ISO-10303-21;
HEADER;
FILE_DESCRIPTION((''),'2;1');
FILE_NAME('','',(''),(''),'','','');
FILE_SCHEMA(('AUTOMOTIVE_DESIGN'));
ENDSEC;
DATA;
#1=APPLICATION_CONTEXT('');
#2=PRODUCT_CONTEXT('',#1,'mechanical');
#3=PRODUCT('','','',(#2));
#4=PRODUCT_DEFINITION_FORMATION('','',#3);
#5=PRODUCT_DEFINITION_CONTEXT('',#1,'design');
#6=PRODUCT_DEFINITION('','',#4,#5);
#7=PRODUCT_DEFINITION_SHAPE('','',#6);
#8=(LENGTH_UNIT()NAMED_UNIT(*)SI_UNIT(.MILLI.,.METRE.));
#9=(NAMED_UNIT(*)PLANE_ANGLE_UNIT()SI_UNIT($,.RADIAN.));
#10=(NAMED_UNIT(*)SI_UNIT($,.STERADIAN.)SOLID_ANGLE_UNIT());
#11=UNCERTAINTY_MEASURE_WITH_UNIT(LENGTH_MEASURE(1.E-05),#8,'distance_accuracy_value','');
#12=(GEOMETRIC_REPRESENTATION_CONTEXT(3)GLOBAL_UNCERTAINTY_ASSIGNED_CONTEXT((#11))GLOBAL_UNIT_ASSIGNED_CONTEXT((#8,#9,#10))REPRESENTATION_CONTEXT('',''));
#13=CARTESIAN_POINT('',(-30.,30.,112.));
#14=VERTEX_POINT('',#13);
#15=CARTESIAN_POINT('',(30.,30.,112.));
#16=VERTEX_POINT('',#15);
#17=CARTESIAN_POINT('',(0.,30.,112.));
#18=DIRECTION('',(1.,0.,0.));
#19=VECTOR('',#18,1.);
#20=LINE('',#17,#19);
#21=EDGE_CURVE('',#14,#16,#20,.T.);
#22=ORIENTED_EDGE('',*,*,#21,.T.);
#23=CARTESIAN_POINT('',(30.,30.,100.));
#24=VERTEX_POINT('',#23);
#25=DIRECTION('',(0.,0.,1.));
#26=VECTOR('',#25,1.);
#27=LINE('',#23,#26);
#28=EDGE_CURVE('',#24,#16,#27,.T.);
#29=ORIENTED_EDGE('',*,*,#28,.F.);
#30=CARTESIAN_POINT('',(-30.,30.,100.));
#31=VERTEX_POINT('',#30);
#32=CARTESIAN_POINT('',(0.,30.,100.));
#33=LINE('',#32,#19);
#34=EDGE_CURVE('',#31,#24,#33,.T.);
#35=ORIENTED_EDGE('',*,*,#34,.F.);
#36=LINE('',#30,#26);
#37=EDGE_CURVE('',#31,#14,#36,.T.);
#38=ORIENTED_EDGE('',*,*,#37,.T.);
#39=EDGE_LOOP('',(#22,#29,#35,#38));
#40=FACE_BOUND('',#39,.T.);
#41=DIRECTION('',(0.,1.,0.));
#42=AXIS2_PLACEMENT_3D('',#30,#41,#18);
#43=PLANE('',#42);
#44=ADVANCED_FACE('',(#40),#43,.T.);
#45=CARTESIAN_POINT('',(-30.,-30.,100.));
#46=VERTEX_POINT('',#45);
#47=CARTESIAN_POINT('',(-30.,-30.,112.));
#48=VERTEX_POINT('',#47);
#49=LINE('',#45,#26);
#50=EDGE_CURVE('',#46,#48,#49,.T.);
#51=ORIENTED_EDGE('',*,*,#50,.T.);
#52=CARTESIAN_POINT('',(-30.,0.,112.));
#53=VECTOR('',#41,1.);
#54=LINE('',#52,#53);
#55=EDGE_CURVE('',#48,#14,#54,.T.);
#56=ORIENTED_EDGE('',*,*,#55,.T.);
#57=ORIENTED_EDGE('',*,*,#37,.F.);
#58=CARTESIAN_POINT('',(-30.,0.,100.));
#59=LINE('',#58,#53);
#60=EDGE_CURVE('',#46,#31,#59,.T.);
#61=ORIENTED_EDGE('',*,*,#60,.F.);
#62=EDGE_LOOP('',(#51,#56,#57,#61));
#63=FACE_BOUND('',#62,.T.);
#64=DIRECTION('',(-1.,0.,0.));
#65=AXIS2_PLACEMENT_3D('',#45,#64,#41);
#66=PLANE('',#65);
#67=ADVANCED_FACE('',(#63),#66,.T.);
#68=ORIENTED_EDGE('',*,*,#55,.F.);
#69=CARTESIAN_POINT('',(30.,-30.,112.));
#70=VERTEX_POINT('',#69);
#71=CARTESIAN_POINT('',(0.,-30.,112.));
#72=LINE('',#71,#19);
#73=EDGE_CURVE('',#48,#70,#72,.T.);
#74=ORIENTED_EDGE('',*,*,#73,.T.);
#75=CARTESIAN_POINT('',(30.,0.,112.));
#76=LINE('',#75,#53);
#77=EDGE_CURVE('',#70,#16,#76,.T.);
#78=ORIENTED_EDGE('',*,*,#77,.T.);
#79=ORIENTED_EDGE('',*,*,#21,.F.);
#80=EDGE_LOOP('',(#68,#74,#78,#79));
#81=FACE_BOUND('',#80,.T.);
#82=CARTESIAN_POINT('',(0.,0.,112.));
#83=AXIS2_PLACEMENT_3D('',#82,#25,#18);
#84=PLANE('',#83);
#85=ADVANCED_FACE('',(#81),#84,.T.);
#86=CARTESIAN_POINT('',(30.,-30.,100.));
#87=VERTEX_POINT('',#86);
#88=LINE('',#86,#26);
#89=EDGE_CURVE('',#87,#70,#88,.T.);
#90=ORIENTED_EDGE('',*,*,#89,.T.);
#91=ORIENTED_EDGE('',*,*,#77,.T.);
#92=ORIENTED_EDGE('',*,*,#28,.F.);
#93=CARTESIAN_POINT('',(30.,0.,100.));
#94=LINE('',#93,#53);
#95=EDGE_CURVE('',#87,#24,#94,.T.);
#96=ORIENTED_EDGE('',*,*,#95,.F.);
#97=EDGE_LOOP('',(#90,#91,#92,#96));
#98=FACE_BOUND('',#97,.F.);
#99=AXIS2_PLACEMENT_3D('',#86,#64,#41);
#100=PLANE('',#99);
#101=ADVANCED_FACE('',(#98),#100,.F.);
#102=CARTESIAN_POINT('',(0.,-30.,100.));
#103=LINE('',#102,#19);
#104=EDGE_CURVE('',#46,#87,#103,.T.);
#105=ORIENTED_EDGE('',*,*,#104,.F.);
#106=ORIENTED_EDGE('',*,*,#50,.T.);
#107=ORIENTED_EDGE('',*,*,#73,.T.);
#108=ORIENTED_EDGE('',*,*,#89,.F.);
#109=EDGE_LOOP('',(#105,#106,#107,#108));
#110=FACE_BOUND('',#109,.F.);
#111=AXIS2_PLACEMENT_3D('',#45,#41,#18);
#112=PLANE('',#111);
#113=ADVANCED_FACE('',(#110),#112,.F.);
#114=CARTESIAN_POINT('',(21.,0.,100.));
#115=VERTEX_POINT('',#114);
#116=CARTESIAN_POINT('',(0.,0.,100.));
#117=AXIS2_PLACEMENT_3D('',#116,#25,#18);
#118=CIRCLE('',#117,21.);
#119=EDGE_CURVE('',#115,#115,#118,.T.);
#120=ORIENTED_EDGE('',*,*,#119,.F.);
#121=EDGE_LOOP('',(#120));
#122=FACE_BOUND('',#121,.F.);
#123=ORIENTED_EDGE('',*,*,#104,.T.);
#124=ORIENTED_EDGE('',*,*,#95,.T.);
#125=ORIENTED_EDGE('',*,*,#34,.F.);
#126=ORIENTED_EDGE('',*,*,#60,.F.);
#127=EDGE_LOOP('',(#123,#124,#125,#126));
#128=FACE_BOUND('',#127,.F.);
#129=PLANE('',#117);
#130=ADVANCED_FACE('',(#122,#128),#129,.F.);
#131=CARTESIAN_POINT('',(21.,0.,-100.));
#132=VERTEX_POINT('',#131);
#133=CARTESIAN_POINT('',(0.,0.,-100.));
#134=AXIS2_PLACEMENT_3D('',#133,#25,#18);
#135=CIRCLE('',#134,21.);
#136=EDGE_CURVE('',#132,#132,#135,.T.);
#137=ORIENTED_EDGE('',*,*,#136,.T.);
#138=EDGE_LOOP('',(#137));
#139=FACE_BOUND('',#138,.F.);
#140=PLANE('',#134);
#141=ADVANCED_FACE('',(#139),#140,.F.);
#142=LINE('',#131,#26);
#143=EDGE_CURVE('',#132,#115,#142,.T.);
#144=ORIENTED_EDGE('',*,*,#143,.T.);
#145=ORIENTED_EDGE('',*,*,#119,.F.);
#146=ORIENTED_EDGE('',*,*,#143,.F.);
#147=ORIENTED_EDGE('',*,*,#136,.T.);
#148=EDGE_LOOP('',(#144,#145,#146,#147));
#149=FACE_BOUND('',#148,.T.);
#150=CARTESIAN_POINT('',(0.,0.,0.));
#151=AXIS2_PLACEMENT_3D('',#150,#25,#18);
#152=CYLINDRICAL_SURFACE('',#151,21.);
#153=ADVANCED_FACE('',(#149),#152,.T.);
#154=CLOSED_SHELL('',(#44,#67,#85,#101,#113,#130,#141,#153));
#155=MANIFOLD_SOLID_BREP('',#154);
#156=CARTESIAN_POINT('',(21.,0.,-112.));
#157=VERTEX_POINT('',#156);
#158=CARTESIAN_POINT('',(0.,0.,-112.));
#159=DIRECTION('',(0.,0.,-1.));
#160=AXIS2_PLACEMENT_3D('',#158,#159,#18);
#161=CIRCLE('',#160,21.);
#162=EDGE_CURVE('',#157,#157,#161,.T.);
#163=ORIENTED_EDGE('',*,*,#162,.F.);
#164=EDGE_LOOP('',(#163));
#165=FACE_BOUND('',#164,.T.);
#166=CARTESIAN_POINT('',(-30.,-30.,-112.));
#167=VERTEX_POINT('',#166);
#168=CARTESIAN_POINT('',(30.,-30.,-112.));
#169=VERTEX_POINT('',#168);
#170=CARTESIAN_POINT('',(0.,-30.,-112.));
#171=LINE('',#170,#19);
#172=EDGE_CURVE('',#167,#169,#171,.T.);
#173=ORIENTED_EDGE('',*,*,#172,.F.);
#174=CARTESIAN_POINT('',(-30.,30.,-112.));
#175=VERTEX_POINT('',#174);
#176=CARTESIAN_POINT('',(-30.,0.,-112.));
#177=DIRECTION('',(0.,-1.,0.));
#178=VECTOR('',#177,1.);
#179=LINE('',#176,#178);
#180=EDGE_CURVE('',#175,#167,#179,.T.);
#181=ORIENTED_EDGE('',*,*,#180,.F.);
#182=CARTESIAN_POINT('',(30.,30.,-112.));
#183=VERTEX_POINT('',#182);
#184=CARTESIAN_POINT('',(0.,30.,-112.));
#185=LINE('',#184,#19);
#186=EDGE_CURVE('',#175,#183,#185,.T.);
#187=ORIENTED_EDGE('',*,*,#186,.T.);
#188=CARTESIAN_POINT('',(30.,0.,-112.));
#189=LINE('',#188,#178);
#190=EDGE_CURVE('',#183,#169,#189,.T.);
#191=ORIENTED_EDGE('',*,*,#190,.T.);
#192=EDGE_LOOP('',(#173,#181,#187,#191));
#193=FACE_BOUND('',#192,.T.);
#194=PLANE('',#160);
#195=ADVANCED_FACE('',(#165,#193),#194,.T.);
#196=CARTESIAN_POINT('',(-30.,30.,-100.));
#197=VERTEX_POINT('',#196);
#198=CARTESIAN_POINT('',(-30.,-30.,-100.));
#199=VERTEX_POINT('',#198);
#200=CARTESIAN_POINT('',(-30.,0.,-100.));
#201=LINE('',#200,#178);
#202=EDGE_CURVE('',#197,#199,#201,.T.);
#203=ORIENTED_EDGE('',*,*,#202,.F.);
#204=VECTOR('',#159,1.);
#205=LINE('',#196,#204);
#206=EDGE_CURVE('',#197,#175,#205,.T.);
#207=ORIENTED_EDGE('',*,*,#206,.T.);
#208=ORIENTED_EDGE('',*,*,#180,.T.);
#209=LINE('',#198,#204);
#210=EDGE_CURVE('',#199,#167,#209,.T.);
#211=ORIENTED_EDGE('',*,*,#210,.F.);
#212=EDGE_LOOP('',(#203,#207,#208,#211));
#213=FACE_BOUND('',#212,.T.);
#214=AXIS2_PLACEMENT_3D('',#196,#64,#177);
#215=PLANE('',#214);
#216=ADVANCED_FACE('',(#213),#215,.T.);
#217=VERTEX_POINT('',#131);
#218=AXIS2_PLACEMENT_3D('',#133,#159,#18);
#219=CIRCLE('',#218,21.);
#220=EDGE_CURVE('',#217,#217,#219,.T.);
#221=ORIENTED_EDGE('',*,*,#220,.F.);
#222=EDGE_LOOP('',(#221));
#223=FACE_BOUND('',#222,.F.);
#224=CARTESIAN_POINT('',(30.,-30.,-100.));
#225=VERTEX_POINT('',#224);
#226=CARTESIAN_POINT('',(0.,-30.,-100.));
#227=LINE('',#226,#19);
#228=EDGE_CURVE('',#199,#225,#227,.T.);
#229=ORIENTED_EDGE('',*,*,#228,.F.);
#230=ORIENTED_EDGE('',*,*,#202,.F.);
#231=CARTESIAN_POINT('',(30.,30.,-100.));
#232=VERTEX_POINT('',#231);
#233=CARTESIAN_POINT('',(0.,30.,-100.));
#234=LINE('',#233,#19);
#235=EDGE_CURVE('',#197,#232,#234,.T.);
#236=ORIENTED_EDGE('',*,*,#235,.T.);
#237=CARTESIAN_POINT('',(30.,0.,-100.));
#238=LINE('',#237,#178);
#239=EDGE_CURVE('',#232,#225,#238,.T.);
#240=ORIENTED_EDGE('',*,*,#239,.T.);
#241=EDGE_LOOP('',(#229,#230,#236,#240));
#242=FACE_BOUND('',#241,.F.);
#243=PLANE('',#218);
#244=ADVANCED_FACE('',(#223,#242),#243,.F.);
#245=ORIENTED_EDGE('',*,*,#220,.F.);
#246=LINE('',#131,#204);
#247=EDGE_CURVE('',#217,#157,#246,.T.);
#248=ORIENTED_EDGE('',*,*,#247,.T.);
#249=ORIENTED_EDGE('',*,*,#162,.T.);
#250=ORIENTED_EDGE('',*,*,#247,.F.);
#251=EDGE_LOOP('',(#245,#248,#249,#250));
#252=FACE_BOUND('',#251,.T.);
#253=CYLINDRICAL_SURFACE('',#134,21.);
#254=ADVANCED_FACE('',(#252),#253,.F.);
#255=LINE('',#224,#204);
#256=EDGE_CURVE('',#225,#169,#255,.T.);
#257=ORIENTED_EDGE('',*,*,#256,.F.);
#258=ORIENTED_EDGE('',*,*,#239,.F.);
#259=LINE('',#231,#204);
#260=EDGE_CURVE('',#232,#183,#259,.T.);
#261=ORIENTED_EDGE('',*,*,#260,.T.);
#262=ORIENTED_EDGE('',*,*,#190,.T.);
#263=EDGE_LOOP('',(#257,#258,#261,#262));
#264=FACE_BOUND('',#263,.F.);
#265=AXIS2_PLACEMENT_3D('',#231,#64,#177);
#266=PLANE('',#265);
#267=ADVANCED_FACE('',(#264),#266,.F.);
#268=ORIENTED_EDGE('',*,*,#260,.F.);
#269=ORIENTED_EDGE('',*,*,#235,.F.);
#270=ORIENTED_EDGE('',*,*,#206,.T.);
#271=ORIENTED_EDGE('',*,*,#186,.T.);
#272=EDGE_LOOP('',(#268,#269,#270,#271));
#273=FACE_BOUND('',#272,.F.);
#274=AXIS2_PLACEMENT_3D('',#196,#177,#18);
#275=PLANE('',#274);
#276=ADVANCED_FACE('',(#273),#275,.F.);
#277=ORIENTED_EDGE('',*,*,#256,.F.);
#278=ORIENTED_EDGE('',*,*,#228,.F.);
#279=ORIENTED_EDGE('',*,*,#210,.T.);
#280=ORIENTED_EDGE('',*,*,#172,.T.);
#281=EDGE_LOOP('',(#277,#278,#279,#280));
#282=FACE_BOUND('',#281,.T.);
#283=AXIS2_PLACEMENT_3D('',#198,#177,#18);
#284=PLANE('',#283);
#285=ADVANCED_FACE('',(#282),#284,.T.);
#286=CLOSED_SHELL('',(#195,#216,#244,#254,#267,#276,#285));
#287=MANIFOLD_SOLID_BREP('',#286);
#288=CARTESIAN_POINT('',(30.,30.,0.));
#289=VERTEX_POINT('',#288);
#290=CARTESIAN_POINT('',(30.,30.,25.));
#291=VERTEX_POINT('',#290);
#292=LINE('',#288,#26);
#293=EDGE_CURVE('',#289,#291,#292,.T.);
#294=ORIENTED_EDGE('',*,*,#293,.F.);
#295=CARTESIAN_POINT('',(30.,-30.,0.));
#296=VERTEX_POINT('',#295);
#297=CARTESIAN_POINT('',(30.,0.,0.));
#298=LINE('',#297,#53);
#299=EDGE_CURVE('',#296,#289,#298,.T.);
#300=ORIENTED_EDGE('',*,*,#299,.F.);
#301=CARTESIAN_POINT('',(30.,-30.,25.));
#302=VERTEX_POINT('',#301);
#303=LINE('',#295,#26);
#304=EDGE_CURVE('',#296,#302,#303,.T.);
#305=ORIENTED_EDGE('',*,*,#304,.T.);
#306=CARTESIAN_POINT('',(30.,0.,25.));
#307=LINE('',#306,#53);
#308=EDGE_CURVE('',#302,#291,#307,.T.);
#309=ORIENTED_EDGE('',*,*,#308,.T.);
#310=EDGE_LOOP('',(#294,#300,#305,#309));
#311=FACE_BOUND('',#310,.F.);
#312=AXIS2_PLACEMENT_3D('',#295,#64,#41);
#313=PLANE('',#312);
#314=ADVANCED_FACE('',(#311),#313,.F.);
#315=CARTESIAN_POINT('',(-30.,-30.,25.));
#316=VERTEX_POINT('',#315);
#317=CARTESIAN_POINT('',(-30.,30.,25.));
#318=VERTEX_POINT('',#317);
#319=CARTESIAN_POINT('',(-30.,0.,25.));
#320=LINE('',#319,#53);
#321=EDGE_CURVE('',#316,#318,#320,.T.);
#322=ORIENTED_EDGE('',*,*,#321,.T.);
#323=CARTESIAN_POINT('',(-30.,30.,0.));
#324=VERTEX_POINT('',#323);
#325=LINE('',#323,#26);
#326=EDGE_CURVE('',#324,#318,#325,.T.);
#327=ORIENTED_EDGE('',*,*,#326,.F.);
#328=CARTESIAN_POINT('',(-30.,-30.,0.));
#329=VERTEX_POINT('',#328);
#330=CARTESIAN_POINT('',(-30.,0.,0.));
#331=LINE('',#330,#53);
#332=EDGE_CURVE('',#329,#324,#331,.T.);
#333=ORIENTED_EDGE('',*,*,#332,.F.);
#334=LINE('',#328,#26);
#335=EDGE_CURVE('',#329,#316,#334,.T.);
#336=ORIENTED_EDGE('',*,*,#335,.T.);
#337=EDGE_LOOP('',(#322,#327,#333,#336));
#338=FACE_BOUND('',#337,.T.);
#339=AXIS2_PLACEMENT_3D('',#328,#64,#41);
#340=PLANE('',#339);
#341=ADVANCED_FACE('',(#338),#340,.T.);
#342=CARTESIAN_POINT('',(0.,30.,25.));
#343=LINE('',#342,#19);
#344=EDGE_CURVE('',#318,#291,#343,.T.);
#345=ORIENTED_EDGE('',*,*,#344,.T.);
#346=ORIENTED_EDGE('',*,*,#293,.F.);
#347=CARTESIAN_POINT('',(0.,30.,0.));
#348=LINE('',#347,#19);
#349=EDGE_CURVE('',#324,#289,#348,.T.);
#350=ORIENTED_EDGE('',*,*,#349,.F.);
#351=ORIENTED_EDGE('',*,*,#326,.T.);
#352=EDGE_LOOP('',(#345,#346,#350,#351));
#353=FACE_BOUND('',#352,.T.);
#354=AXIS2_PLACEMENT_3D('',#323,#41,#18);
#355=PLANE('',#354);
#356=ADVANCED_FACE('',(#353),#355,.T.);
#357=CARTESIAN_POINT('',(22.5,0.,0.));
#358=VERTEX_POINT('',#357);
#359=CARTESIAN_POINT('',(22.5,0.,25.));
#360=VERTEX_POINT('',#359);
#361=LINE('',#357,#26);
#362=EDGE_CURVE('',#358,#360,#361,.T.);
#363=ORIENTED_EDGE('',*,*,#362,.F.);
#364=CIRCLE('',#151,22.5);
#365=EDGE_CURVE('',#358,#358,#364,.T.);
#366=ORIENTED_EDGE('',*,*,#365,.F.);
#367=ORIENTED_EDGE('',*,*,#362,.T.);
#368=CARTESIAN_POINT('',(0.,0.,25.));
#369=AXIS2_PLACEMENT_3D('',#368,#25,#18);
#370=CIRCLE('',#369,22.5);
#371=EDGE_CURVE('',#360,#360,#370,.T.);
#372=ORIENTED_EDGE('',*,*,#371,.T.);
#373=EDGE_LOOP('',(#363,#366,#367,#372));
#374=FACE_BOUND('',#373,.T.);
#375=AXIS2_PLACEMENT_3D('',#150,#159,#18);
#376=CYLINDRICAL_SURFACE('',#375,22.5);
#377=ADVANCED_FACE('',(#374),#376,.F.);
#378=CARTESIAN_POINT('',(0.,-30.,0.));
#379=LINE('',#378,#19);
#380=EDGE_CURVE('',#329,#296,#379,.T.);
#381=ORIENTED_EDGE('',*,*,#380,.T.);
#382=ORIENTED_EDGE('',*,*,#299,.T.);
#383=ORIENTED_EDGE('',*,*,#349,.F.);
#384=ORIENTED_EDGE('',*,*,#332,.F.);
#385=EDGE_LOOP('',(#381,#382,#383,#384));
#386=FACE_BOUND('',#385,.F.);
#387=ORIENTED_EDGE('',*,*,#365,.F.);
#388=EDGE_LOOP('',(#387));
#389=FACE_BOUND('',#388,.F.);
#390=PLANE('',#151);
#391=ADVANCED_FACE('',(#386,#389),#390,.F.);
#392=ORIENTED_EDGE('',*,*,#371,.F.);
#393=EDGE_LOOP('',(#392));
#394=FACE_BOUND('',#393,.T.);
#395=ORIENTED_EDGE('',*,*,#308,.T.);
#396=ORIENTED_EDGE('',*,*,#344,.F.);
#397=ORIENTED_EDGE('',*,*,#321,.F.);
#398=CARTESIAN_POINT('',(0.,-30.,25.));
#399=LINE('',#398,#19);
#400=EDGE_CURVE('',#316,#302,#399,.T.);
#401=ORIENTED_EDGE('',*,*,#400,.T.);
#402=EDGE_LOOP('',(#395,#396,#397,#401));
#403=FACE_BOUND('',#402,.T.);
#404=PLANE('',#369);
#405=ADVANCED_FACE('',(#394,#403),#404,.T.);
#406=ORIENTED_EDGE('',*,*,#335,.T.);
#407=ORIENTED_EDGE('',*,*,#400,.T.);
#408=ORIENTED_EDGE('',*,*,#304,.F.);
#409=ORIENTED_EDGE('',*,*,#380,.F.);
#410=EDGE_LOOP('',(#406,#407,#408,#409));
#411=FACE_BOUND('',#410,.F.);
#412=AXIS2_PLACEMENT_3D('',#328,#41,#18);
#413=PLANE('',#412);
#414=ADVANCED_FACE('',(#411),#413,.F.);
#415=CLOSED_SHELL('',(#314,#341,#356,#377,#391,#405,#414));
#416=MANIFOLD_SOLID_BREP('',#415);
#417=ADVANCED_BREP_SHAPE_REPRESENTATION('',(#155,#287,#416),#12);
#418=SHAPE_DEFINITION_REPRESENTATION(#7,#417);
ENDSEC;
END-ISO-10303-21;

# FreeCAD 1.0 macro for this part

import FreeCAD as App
import Part
import Sketcher
from FreeCAD import Vector

doc = App.newDocument("Part")
body = doc.addObject("PartDesign::Body", "Body")

sketch1 = doc.addObject("Sketcher::SketchObject", "Sketch")
body.addObject(sketch1)
sketch1.AttachmentSupport = (doc.XY_Plane, [""])
sketch1.MapMode = "FlatFace"
sketch1.addGeometry([
    Part.LineSegment(Vector(-30, 30, 0), Vector(-30, -30, 0)),
    Part.LineSegment(Vector(-30, -30, 0), Vector(30, -30, 0)),
    Part.LineSegment(Vector(30, -30, 0), Vector(30, 30, 0)),
    Part.LineSegment(Vector(30, 30, 0), Vector(-30, 30, 0)),
], False)
sketch1.addConstraint([
    Sketcher.Constraint("Coincident", 0, 2, 1, 1),
    Sketcher.Constraint("Coincident", 1, 2, 2, 1),
    Sketcher.Constraint("Coincident", 2, 2, 3, 1),
    Sketcher.Constraint("Coincident", 3, 2, 0, 1),
    Sketcher.Constraint("Vertical", 0),
    Sketcher.Constraint("Horizontal", 1),
    Sketcher.Constraint("Vertical", 2),
    Sketcher.Constraint("Horizontal", 3),
    Sketcher.Constraint("Symmetric", 0, 2, 2, 2, -1, 1),
    Sketcher.Constraint("Equal", 3, 0),
    Sketcher.Constraint("DistanceX", 1, 1, 1, 2, 60.0),
])
pad1 = doc.addObject("PartDesign::Pad", "Pad")
body.addObject(pad1)
pad1.Profile = sketch1
pad1.Length = 25

sketch2 = doc.addObject("Sketcher::SketchObject", "Sketch001")
body.addObject(sketch2)
sketch2.AttachmentSupport = (doc.XY_Plane, [""])
sketch2.MapMode = "FlatFace"
sketch2.addGeometry(Part.Circle(Vector(0, 0, 0), Vector(0, 0, 1), 22.5), False)
sketch2.addConstraint([
    Sketcher.Constraint("Coincident", 0, 3, -1, 1),
    Sketcher.Constraint("Diameter", 0, 45.0),
])
pocket1 = doc.addObject("PartDesign::Pocket", "Pocket")
body.addObject(pocket1)
pocket1.Profile = sketch2
pocket1.Length = 25
pocket1.Reversed = True
body2 = doc.addObject("PartDesign::Body", "Body001")

sketch3 = doc.addObject("Sketcher::SketchObject", "Sketch002")
body2.addObject(sketch3)
sketch3.AttachmentSupport = (doc.getObject("XY_Plane001"), [""])
sketch3.MapMode = "FlatFace"
sketch3.addGeometry(Part.Circle(Vector(0, 0, 0), Vector(0, 0, 1), 21), False)
sketch3.addConstraint([
    Sketcher.Constraint("Coincident", 0, 3, -1, 1),
    Sketcher.Constraint("Diameter", 0, 42.0),
])
pad2 = doc.addObject("PartDesign::Pad", "Pad001")
body2.addObject(pad2)
pad2.Profile = sketch3
pad2.Length = 200
pad2.Midplane = True

sketch4 = doc.addObject("Sketcher::SketchObject", "Sketch003")
body2.addObject(sketch4)
sketch4.AttachmentSupport = (doc.getObject("XY_Plane001"), [""])
sketch4.MapMode = "FlatFace"
sketch4.AttachmentOffset = App.Placement(Vector(0, 0, 100), App.Rotation())
sketch4.addGeometry([
    Part.LineSegment(Vector(-30, 30, 0), Vector(-30, -30, 0)),
    Part.LineSegment(Vector(-30, -30, 0), Vector(30, -30, 0)),
    Part.LineSegment(Vector(30, -30, 0), Vector(30, 30, 0)),
    Part.LineSegment(Vector(30, 30, 0), Vector(-30, 30, 0)),
], False)
sketch4.addConstraint([
    Sketcher.Constraint("Coincident", 0, 2, 1, 1),
    Sketcher.Constraint("Coincident", 1, 2, 2, 1),
    Sketcher.Constraint("Coincident", 2, 2, 3, 1),
    Sketcher.Constraint("Coincident", 3, 2, 0, 1),
    Sketcher.Constraint("Vertical", 0),
    Sketcher.Constraint("Horizontal", 1),
    Sketcher.Constraint("Vertical", 2),
    Sketcher.Constraint("Horizontal", 3),
    Sketcher.Constraint("Symmetric", 0, 2, 2, 2, -1, 1),
    Sketcher.Constraint("Equal", 3, 0),
    Sketcher.Constraint("DistanceX", 1, 1, 1, 2, 60.0),
])
pad3 = doc.addObject("PartDesign::Pad", "Pad002")
body2.addObject(pad3)
pad3.Profile = sketch4
pad3.Length = 12
body3 = doc.addObject("PartDesign::Body", "Body002")

sketch5 = doc.addObject("Sketcher::SketchObject", "Sketch004")
body3.addObject(sketch5)
sketch5.AttachmentSupport = (doc.getObject("XY_Plane002"), [""])
sketch5.MapMode = "FlatFace"
sketch5.AttachmentOffset = App.Placement(Vector(0, 0, -100), App.Rotation())
sketch5.addGeometry([
    Part.LineSegment(Vector(-30, -30, 0), Vector(-30, 30, 0)),
    Part.LineSegment(Vector(-30, 30, 0), Vector(30, 30, 0)),
    Part.LineSegment(Vector(30, 30, 0), Vector(30, -30, 0)),
    Part.LineSegment(Vector(30, -30, 0), Vector(-30, -30, 0)),
    Part.Circle(Vector(0, 0, 0), Vector(0, 0, 1), 21),
], False)
sketch5.addConstraint([
    Sketcher.Constraint("Coincident", 0, 2, 1, 1),
    Sketcher.Constraint("Coincident", 1, 2, 2, 1),
    Sketcher.Constraint("Coincident", 2, 2, 3, 1),
    Sketcher.Constraint("Coincident", 3, 2, 0, 1),
    Sketcher.Constraint("Vertical", 0),
    Sketcher.Constraint("Horizontal", 1),
    Sketcher.Constraint("Vertical", 2),
    Sketcher.Constraint("Horizontal", 3),
    Sketcher.Constraint("Coincident", 4, 3, -1, 1),
    Sketcher.Constraint("Symmetric", 0, 2, 2, 2, -1, 1),
    Sketcher.Constraint("Equal", 3, 0),
    Sketcher.Constraint("Diameter", 4, 42.0),
    Sketcher.Constraint("DistanceX", 1, 1, 1, 2, 60.0),
])
pad4 = doc.addObject("PartDesign::Pad", "Pad003")
body3.addObject(pad4)
pad4.Profile = sketch5
pad4.Length = 12
pad4.Reversed = True

doc.recompute()
